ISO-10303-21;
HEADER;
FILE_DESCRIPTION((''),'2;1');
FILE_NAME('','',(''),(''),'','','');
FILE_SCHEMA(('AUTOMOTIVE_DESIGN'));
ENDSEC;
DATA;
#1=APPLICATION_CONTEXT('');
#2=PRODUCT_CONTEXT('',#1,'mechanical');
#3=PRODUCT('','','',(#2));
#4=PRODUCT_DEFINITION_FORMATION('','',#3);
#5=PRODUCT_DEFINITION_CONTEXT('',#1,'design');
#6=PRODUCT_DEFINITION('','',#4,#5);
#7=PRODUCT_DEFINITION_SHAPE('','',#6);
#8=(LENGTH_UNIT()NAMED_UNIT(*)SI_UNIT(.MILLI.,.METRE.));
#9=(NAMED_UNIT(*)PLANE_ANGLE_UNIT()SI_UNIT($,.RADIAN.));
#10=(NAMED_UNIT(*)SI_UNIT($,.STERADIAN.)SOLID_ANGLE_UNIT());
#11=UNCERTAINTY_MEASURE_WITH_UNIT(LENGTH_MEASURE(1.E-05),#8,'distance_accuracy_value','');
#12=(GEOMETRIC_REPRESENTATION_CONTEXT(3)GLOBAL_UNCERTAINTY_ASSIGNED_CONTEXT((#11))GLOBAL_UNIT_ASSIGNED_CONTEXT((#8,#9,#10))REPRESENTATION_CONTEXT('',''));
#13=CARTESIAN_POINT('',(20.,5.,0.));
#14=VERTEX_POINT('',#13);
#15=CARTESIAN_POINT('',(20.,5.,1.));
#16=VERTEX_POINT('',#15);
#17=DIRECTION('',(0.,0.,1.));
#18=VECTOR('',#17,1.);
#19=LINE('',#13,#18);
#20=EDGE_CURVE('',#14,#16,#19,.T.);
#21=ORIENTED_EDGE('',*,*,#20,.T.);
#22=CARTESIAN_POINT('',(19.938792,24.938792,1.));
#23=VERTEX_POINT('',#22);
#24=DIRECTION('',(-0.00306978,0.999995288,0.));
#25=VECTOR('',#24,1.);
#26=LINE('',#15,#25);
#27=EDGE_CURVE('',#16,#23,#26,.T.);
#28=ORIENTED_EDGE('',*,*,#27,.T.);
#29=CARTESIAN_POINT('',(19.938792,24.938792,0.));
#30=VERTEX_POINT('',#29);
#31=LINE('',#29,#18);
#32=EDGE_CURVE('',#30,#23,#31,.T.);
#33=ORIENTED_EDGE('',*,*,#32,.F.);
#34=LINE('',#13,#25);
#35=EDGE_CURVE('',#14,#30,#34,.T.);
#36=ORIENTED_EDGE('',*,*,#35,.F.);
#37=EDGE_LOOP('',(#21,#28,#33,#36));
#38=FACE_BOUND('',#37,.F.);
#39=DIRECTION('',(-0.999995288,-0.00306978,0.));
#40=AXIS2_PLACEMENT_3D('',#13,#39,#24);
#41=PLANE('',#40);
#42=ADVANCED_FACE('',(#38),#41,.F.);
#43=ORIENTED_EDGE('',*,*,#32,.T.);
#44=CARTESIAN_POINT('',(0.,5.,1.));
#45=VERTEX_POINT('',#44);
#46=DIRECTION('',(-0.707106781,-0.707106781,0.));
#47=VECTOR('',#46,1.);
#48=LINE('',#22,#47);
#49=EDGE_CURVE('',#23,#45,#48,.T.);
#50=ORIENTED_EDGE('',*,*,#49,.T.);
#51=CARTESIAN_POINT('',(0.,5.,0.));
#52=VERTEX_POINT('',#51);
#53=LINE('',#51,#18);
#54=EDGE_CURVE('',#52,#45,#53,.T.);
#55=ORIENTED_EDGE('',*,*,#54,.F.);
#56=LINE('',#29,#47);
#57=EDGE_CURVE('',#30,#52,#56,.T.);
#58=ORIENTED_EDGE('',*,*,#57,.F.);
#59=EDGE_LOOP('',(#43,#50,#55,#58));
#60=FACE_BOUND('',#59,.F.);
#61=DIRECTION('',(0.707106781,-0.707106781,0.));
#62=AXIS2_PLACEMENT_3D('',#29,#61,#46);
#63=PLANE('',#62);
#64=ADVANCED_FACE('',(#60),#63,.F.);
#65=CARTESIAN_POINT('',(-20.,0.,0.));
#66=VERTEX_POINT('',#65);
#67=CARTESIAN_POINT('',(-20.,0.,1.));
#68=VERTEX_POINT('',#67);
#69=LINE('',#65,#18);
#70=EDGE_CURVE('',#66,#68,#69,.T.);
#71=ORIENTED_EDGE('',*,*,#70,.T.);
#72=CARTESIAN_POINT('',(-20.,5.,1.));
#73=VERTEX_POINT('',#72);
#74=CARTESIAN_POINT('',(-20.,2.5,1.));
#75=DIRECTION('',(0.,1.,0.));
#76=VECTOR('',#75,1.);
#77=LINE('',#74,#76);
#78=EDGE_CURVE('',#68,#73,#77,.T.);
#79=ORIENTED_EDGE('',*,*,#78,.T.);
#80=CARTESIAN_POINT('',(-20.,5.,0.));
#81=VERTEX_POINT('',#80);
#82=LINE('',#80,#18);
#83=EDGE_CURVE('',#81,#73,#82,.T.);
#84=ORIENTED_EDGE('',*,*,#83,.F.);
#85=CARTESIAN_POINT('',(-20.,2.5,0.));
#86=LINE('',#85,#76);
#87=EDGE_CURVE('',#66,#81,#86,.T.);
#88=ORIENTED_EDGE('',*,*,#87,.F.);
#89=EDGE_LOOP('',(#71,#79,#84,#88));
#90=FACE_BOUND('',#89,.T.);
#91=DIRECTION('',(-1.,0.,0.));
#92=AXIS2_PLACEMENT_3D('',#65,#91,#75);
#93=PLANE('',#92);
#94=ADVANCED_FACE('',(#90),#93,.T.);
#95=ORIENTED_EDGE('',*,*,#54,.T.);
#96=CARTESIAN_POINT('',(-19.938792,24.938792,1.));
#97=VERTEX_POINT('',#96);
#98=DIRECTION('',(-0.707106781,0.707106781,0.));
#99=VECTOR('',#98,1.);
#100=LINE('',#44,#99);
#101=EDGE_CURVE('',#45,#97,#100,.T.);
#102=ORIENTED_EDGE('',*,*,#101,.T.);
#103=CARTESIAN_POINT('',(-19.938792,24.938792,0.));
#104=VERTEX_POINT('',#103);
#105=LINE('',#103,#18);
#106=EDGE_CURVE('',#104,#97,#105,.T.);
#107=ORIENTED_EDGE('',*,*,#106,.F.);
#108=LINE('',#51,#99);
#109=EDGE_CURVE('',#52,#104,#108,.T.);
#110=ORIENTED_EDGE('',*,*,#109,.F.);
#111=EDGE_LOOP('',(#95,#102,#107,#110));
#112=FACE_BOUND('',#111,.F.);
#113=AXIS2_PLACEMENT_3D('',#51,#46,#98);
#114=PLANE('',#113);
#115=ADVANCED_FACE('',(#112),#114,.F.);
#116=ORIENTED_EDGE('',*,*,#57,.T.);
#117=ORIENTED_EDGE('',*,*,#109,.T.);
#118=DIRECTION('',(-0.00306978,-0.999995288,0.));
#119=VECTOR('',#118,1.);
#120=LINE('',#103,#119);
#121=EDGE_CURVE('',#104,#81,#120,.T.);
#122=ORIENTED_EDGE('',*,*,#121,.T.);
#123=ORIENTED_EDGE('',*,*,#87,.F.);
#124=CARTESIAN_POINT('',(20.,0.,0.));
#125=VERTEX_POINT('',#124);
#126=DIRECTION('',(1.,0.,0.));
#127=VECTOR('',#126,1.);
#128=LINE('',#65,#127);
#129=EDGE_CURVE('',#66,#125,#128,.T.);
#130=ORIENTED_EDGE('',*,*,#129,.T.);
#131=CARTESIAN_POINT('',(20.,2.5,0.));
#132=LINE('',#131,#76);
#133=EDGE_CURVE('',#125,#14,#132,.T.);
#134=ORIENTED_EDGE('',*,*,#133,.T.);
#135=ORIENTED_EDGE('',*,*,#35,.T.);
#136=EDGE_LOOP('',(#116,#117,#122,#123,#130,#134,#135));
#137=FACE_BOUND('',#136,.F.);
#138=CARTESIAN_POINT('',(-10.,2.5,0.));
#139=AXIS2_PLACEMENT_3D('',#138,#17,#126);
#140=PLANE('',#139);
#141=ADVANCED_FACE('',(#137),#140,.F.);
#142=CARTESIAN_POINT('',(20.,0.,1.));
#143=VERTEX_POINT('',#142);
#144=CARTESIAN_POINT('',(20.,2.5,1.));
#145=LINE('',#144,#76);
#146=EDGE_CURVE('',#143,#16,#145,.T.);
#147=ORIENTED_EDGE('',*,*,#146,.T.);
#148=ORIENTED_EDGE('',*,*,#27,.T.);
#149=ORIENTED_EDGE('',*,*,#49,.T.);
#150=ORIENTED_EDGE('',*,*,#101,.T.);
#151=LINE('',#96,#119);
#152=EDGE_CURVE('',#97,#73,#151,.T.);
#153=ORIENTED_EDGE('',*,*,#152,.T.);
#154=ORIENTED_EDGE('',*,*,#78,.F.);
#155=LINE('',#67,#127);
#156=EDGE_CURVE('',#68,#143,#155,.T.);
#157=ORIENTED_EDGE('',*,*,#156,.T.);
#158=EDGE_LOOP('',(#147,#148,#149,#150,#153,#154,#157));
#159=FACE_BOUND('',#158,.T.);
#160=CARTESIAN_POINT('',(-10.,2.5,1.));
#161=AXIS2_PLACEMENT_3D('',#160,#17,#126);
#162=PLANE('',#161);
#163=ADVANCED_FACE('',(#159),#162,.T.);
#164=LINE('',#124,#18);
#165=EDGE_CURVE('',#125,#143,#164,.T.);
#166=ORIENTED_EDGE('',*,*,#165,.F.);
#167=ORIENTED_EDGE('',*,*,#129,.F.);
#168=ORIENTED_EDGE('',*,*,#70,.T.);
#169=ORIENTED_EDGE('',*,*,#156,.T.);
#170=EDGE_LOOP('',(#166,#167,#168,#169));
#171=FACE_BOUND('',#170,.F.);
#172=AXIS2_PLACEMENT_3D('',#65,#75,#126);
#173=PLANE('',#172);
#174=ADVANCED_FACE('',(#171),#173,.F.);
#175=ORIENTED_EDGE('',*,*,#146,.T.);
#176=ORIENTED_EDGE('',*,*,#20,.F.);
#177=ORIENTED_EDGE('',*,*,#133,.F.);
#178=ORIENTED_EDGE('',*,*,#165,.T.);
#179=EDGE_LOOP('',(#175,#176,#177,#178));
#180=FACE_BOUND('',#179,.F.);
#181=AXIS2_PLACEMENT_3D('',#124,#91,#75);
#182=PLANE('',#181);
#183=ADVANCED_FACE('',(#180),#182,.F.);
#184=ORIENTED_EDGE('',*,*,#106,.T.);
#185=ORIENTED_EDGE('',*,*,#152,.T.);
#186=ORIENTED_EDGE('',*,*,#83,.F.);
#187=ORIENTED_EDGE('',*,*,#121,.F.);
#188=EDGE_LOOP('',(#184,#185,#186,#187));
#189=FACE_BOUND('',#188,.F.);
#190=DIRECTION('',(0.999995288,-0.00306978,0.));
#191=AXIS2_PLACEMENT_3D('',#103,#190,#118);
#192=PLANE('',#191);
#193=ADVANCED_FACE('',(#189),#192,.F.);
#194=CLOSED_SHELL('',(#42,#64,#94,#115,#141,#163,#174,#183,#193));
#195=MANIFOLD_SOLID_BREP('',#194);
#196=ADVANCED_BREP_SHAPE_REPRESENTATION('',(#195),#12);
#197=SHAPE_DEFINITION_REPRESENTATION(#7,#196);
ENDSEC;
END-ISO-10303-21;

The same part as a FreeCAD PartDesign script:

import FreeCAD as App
import Part
import Sketcher

doc = App.newDocument("Part")
params = doc.addObject("Spreadsheet::Sheet", "Params")
for row, (alias, value) in enumerate([
    ("sketch1_width", "40 mm"),
    ("sketch1_height", "5 mm"),
    ("pad1_length", "1 mm"),
], start=1):
    params.set(f"A{row}", alias)
    params.set(f"B{row}", "=" + value)
    params.setAlias(f"B{row}", alias)

body = doc.addObject("PartDesign::Body", "Body")

sketch1 = doc.addObject("Sketcher::SketchObject", "Sketch")
body.addObject(sketch1)
sketch1.AttachmentSupport = (doc.XY_Plane, [""])
sketch1.MapMode = "FlatFace"
sketch1.addGeometry(Part.LineSegment(App.Vector(-20, 5, 0), App.Vector(-20, 0, 0)), False)
sketch1.addGeometry(Part.LineSegment(App.Vector(-20, 0, 0), App.Vector(20, 0, 0)), False)
sketch1.addGeometry(Part.LineSegment(App.Vector(20, 0, 0), App.Vector(20, 5, 0)), False)
sketch1.addGeometry(Part.LineSegment(App.Vector(20, 5, 0), App.Vector(19.938792, 24.938792, 0)), False)
sketch1.addGeometry(Part.LineSegment(App.Vector(19.938792, 24.938792, 0), App.Vector(0, 5, 0)), False)
sketch1.addGeometry(Part.LineSegment(App.Vector(0, 5, 0), App.Vector(-19.938792, 24.938792, 0)), False)
sketch1.addGeometry(Part.LineSegment(App.Vector(-19.938792, 24.938792, 0), App.Vector(-20, 5, 0)), False)
sketch1.addConstraint(Sketcher.Constraint("Coincident", 0, 2, 1, 1))
sketch1.addConstraint(Sketcher.Constraint("Coincident", 1, 2, 2, 1))
sketch1.addConstraint(Sketcher.Constraint("Coincident", 2, 2, 3, 1))
sketch1.addConstraint(Sketcher.Constraint("Coincident", 3, 2, 4, 1))
sketch1.addConstraint(Sketcher.Constraint("Coincident", 4, 2, 5, 1))
sketch1.addConstraint(Sketcher.Constraint("Coincident", 5, 2, 6, 1))
sketch1.addConstraint(Sketcher.Constraint("Coincident", 6, 2, 0, 1))
sketch1.addConstraint(Sketcher.Constraint("Vertical", 0))
sketch1.addConstraint(Sketcher.Constraint("Horizontal", 1))
sketch1.addConstraint(Sketcher.Constraint("Vertical", 2))
sketch1.addConstraint(Sketcher.Constraint("Symmetric", 0, 2, 1, 2, -1, 1))
sketch1.addConstraint(Sketcher.Constraint("Symmetric", 3, 2, 5, 2, -2))
sketch1.addConstraint(Sketcher.Constraint("PointOnObject", 4, 2, -2))
sketch1.addConstraint(Sketcher.Constraint("Perpendicular", 4, 5))
sketch1.addConstraint(Sketcher.Constraint("Horizontal", 2, 2, 4, 2))
sketch1.addConstraint(Sketcher.Constraint("Horizontal", 4, 2, 6, 2))
sketch1.addConstraint(Sketcher.Constraint("DistanceX", 1, 1, 1, 2, 40.0))
sketch1.addConstraint(Sketcher.Constraint("DistanceY", 0, 2, 0, 1, 5.0))
sketch1.addConstraint(Sketcher.Constraint("Distance", 4, 28.19771))
sketch1.setExpression("Constraints[16]", "Params.sketch1_width")
sketch1.setExpression("Constraints[17]", "Params.sketch1_height")
pad1 = doc.addObject("PartDesign::Pad", "Pad")
body.addObject(pad1)
pad1.Profile = sketch1
pad1.setExpression("Length", "Params.pad1_length")

doc.recompute()
